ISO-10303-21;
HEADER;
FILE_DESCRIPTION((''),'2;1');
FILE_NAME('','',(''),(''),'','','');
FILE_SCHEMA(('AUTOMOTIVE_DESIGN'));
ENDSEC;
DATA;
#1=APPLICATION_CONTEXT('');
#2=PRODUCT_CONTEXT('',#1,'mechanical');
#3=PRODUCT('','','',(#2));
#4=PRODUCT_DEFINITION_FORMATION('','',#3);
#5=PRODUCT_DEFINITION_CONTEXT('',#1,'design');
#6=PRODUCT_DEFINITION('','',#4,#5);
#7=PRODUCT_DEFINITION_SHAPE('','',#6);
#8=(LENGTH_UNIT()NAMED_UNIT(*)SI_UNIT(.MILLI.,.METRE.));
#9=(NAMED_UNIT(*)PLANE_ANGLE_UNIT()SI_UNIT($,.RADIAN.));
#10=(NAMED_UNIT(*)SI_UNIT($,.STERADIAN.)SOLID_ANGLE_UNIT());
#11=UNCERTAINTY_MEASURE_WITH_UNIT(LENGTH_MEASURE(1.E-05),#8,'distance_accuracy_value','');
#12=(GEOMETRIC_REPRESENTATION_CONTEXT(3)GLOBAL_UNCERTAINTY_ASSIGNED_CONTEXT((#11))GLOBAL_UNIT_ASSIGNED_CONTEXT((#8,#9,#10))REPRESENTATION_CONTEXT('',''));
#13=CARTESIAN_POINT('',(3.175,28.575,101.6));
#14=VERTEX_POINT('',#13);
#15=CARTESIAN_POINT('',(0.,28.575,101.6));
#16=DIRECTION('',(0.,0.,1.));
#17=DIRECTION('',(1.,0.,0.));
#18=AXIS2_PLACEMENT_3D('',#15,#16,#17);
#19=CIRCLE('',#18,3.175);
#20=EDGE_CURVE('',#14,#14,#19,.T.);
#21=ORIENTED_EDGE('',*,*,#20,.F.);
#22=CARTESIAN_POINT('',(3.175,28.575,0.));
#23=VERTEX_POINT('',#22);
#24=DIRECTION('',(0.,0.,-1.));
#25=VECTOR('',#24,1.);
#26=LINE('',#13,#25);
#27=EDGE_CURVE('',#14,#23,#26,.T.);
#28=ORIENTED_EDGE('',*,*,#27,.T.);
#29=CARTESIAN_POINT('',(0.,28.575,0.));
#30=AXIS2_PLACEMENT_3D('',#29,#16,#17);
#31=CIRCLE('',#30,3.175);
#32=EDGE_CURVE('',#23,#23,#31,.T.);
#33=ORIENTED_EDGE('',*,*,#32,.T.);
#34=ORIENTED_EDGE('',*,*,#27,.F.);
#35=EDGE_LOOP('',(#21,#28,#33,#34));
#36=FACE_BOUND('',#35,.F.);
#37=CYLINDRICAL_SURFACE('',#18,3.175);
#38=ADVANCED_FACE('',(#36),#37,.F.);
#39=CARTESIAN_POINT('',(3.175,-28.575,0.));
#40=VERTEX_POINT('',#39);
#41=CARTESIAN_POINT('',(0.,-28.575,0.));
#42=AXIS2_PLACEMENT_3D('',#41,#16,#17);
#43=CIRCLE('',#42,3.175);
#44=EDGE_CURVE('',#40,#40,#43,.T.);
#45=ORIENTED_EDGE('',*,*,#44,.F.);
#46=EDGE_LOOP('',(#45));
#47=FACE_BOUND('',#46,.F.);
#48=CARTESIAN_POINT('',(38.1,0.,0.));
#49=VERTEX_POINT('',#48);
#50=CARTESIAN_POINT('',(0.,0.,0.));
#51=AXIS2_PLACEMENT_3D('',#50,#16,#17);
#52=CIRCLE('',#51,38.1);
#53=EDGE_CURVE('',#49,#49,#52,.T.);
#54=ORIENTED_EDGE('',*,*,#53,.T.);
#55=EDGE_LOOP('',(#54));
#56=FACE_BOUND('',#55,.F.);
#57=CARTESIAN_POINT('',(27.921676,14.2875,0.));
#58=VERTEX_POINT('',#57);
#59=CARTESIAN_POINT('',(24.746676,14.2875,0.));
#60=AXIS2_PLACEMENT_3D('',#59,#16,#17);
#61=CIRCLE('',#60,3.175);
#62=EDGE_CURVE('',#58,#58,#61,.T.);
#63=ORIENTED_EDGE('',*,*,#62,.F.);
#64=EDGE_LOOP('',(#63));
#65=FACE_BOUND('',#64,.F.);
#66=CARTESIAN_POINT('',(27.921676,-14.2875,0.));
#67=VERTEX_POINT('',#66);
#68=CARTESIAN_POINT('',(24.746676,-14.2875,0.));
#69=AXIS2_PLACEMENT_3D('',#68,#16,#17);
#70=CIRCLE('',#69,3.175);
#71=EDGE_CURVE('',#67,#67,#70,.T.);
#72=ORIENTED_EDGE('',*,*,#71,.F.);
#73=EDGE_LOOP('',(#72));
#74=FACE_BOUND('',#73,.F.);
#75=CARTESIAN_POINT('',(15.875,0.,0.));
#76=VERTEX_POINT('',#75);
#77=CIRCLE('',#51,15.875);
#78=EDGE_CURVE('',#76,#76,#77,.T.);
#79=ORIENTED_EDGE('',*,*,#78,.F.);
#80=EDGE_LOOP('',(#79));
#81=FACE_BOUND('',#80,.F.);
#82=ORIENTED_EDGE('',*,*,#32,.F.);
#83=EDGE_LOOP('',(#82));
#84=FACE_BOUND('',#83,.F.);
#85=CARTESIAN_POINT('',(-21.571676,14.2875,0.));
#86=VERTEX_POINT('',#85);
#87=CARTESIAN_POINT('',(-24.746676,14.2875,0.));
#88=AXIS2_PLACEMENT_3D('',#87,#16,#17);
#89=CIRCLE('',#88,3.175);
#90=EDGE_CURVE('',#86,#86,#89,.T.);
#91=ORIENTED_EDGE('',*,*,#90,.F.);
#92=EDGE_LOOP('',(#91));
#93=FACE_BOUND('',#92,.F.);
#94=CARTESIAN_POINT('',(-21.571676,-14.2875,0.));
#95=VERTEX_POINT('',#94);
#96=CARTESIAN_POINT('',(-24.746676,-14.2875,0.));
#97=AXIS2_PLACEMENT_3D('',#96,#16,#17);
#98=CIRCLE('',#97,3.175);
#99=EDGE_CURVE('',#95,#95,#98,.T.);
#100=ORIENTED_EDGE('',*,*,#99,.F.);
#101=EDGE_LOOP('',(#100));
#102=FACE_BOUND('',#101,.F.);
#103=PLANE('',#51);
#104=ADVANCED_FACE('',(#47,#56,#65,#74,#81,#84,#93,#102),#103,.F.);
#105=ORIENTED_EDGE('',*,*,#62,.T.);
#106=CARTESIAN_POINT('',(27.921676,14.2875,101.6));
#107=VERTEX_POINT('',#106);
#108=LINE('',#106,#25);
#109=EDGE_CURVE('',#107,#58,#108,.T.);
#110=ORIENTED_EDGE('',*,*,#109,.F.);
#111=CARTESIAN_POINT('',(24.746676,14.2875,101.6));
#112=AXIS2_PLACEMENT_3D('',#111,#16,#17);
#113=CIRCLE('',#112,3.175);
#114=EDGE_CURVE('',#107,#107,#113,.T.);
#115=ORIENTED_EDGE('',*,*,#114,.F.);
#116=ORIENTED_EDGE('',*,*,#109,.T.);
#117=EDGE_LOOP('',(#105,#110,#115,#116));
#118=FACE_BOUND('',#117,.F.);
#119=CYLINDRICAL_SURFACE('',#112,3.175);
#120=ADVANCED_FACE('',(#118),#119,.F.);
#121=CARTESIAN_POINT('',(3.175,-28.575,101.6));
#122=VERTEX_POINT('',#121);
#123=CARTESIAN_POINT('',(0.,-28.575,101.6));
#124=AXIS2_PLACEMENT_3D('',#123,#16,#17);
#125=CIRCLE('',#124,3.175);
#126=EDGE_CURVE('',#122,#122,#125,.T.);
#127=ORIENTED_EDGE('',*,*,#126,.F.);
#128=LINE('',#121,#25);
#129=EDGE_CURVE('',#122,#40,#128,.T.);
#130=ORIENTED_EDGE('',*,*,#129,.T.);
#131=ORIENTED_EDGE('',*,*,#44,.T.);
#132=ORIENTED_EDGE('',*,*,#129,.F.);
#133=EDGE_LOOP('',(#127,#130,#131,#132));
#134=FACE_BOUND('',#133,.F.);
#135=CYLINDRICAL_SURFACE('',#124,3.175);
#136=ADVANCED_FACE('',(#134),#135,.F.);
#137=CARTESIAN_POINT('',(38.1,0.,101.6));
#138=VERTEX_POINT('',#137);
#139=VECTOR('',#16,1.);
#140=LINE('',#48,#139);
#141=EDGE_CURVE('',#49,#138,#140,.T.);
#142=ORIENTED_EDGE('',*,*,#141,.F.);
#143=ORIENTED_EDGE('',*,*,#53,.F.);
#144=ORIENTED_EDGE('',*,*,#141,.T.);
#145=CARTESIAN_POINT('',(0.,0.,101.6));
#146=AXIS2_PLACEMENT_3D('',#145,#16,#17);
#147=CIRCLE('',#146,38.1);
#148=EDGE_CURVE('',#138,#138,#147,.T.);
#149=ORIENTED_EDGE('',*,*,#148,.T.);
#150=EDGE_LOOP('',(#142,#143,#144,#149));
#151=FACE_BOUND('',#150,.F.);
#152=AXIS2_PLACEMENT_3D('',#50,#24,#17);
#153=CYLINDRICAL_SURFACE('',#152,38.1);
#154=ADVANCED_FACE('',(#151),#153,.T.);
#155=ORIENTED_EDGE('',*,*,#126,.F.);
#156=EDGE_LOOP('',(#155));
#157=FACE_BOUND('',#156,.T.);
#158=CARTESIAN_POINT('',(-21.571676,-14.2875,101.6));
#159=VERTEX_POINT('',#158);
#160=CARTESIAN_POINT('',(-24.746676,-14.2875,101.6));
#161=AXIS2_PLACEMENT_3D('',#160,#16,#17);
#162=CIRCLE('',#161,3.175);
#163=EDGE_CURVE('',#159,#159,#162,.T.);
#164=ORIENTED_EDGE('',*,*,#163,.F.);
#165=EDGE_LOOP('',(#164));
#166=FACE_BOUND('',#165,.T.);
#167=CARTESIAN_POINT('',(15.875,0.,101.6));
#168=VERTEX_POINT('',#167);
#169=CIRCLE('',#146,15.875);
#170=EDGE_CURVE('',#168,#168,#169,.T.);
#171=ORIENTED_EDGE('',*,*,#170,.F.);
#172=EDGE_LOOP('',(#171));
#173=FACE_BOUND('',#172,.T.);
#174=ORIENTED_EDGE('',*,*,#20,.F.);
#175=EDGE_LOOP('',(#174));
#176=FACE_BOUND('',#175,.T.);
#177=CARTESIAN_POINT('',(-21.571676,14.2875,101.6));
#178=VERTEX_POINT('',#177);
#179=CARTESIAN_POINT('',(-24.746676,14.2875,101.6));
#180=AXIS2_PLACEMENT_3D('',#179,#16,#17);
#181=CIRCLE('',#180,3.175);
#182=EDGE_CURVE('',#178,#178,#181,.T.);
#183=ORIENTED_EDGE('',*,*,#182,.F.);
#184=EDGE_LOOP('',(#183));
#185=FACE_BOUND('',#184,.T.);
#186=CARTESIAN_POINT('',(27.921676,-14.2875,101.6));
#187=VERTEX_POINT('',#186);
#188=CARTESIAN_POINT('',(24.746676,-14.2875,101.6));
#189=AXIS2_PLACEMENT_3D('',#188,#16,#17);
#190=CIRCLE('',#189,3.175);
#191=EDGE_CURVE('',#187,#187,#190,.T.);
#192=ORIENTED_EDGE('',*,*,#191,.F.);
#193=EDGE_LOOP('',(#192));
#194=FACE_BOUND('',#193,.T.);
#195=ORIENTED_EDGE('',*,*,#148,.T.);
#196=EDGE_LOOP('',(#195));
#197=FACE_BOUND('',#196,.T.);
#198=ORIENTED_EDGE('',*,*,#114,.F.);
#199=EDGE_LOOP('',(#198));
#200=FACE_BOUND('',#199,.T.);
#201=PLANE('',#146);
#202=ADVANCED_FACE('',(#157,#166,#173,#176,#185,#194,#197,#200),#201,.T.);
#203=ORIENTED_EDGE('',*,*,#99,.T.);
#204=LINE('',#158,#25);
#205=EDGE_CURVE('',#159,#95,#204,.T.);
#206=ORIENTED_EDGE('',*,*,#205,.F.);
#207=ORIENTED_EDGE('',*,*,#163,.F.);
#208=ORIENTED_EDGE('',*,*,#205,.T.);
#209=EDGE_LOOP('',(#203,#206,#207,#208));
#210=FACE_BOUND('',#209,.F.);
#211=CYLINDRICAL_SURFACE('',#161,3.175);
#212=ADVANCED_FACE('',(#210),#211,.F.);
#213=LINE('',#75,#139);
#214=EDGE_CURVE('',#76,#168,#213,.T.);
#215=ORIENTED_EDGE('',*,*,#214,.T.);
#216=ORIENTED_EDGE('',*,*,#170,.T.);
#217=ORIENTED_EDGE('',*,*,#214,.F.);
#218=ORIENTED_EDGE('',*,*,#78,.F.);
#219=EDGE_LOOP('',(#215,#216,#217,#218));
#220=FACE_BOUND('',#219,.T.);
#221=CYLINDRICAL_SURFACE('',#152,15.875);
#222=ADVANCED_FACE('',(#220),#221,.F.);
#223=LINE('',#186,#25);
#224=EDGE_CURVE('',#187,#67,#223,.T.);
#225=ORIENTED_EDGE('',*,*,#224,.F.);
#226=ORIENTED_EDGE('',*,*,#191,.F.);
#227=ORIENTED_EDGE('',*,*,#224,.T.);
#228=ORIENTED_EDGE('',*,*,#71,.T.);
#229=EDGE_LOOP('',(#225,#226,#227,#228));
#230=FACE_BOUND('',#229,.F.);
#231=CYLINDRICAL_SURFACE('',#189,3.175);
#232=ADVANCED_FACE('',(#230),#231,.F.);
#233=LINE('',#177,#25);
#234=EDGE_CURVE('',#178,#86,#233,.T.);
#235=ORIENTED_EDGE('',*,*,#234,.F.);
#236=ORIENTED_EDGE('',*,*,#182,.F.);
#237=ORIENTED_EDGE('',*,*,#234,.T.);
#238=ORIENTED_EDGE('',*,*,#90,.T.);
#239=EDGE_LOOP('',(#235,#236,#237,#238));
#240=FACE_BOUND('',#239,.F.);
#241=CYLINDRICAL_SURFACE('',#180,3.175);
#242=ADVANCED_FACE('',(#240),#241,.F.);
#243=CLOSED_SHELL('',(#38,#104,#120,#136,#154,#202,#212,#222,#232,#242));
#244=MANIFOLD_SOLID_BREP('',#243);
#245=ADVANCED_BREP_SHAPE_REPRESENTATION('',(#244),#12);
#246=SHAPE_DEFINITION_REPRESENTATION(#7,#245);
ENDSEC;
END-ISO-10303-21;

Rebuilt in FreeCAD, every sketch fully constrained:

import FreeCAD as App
import Part
import Sketcher
Q = App.Units.Quantity

doc = App.newDocument("Part")
params = doc.addObject("Spreadsheet::Sheet", "Params")
for row, (alias, value) in enumerate([
    ("sketch1_diameter", "3 in"),
    ("sketch1_diameter2", "1.25 in"),
    ("pad1_length", "4 in"),
    ("sketch2_diameter", "0.25 in"),
], start=1):
    params.set(f"A{row}", alias)
    params.set(f"B{row}", "=" + value)
    params.setAlias(f"B{row}", alias)

body = doc.addObject("PartDesign::Body", "Body")

sketch1 = body.newObject("Sketcher::SketchObject", "Sketch")
sketch1.AttachmentSupport = (doc.getObject("XY_Plane"), [""])
sketch1.MapMode = "FlatFace"
sketch1.addGeometry(Part.Circle(App.Vector(0, 0, 0), App.Vector(0, 0, 1), 38), False)
sketch1.addGeometry(Part.Circle(App.Vector(0, 0, 0), App.Vector(0, 0, 1), 16), False)
sketch1.addConstraint(Sketcher.Constraint("Coincident", 0, 3, -1, 1))
sketch1.addConstraint(Sketcher.Constraint("Coincident", 1, 3, -1, 1))
sketch1.addConstraint(Sketcher.Constraint("Diameter", 0, Q("3 in")))
sketch1.addConstraint(Sketcher.Constraint("Diameter", 1, Q("1.25 in")))
sketch1.setExpression("Constraints[2]", "Params.sketch1_diameter")
sketch1.setExpression("Constraints[3]", "Params.sketch1_diameter2")
pad1 = body.newObject("PartDesign::Pad", "Pad")
pad1.Profile = sketch1
pad1.setExpression("Length", "Params.pad1_length")

sketch2 = body.newObject("Sketcher::SketchObject", "Sketch001")
sketch2.AttachmentSupport = (doc.getObject("XY_Plane"), [""])
sketch2.MapMode = "FlatFace"
sketch2.AttachmentOffset = App.Placement(App.Vector(0, 0, 4 * 25.4), App.Rotation())
sketch2.addGeometry(Part.Circle(App.Vector(0, 28.6, 0), App.Vector(0, 0, 1), 3.2), False)
sketch2.addGeometry(Part.Circle(App.Vector(-24.7, 14.3, 0), App.Vector(0, 0, 1), 3.2), False)
sketch2.addGeometry(Part.Circle(App.Vector(-24.7, -14.3, 0), App.Vector(0, 0, 1), 3.2), False)
sketch2.addGeometry(Part.Circle(App.Vector(0, -28.6, 0), App.Vector(0, 0, 1), 3.2), False)
sketch2.addGeometry(Part.Circle(App.Vector(24.7, -14.3, 0), App.Vector(0, 0, 1), 3.2), False)
sketch2.addGeometry(Part.Circle(App.Vector(24.7, 14.3, 0), App.Vector(0, 0, 1), 3.2), False)
sketch2.addConstraint(Sketcher.Constraint("Equal", 0, 1))
sketch2.addConstraint(Sketcher.Constraint("Equal", 1, 2))
sketch2.addConstraint(Sketcher.Constraint("Equal", 2, 3))
sketch2.addConstraint(Sketcher.Constraint("Equal", 3, 4))
sketch2.addConstraint(Sketcher.Constraint("Equal", 4, 5))
sketch2.addConstraint(Sketcher.Constraint("Symmetric", 0, 3, 3, 3, -1, 1))
sketch2.addConstraint(Sketcher.Constraint("Symmetric", 1, 3, 4, 3, -1, 1))
sketch2.addConstraint(Sketcher.Constraint("Symmetric", 2, 3, 5, 3, -1, 1))
sketch2.addConstraint(Sketcher.Constraint("Symmetric", 2, 3, 4, 3, -2))
sketch2.addConstraint(Sketcher.Constraint("PointOnObject", 0, 3, -2))
sketch2.addConstraint(Sketcher.Constraint("Diameter", 0, Q("0.25 in")))
sketch2.addConstraint(Sketcher.Constraint("DistanceY", 3, 3, 0, 3, Q("2.25 in")))
sketch2.addConstraint(Sketcher.Constraint("DistanceY", -1, 1, 1, 3, Q("0.5625 in")))
sketch2.addConstraint(Sketcher.Constraint("DistanceX", 1, 3, -1, 1, Q("24.746676 mm")))
sketch2.setExpression("Constraints[10]", "Params.sketch2_diameter")
pocket1 = body.newObject("PartDesign::Pocket", "Pocket")
pocket1.Profile = sketch2
pocket1.Type = "ThroughAll"

doc.recompute()
